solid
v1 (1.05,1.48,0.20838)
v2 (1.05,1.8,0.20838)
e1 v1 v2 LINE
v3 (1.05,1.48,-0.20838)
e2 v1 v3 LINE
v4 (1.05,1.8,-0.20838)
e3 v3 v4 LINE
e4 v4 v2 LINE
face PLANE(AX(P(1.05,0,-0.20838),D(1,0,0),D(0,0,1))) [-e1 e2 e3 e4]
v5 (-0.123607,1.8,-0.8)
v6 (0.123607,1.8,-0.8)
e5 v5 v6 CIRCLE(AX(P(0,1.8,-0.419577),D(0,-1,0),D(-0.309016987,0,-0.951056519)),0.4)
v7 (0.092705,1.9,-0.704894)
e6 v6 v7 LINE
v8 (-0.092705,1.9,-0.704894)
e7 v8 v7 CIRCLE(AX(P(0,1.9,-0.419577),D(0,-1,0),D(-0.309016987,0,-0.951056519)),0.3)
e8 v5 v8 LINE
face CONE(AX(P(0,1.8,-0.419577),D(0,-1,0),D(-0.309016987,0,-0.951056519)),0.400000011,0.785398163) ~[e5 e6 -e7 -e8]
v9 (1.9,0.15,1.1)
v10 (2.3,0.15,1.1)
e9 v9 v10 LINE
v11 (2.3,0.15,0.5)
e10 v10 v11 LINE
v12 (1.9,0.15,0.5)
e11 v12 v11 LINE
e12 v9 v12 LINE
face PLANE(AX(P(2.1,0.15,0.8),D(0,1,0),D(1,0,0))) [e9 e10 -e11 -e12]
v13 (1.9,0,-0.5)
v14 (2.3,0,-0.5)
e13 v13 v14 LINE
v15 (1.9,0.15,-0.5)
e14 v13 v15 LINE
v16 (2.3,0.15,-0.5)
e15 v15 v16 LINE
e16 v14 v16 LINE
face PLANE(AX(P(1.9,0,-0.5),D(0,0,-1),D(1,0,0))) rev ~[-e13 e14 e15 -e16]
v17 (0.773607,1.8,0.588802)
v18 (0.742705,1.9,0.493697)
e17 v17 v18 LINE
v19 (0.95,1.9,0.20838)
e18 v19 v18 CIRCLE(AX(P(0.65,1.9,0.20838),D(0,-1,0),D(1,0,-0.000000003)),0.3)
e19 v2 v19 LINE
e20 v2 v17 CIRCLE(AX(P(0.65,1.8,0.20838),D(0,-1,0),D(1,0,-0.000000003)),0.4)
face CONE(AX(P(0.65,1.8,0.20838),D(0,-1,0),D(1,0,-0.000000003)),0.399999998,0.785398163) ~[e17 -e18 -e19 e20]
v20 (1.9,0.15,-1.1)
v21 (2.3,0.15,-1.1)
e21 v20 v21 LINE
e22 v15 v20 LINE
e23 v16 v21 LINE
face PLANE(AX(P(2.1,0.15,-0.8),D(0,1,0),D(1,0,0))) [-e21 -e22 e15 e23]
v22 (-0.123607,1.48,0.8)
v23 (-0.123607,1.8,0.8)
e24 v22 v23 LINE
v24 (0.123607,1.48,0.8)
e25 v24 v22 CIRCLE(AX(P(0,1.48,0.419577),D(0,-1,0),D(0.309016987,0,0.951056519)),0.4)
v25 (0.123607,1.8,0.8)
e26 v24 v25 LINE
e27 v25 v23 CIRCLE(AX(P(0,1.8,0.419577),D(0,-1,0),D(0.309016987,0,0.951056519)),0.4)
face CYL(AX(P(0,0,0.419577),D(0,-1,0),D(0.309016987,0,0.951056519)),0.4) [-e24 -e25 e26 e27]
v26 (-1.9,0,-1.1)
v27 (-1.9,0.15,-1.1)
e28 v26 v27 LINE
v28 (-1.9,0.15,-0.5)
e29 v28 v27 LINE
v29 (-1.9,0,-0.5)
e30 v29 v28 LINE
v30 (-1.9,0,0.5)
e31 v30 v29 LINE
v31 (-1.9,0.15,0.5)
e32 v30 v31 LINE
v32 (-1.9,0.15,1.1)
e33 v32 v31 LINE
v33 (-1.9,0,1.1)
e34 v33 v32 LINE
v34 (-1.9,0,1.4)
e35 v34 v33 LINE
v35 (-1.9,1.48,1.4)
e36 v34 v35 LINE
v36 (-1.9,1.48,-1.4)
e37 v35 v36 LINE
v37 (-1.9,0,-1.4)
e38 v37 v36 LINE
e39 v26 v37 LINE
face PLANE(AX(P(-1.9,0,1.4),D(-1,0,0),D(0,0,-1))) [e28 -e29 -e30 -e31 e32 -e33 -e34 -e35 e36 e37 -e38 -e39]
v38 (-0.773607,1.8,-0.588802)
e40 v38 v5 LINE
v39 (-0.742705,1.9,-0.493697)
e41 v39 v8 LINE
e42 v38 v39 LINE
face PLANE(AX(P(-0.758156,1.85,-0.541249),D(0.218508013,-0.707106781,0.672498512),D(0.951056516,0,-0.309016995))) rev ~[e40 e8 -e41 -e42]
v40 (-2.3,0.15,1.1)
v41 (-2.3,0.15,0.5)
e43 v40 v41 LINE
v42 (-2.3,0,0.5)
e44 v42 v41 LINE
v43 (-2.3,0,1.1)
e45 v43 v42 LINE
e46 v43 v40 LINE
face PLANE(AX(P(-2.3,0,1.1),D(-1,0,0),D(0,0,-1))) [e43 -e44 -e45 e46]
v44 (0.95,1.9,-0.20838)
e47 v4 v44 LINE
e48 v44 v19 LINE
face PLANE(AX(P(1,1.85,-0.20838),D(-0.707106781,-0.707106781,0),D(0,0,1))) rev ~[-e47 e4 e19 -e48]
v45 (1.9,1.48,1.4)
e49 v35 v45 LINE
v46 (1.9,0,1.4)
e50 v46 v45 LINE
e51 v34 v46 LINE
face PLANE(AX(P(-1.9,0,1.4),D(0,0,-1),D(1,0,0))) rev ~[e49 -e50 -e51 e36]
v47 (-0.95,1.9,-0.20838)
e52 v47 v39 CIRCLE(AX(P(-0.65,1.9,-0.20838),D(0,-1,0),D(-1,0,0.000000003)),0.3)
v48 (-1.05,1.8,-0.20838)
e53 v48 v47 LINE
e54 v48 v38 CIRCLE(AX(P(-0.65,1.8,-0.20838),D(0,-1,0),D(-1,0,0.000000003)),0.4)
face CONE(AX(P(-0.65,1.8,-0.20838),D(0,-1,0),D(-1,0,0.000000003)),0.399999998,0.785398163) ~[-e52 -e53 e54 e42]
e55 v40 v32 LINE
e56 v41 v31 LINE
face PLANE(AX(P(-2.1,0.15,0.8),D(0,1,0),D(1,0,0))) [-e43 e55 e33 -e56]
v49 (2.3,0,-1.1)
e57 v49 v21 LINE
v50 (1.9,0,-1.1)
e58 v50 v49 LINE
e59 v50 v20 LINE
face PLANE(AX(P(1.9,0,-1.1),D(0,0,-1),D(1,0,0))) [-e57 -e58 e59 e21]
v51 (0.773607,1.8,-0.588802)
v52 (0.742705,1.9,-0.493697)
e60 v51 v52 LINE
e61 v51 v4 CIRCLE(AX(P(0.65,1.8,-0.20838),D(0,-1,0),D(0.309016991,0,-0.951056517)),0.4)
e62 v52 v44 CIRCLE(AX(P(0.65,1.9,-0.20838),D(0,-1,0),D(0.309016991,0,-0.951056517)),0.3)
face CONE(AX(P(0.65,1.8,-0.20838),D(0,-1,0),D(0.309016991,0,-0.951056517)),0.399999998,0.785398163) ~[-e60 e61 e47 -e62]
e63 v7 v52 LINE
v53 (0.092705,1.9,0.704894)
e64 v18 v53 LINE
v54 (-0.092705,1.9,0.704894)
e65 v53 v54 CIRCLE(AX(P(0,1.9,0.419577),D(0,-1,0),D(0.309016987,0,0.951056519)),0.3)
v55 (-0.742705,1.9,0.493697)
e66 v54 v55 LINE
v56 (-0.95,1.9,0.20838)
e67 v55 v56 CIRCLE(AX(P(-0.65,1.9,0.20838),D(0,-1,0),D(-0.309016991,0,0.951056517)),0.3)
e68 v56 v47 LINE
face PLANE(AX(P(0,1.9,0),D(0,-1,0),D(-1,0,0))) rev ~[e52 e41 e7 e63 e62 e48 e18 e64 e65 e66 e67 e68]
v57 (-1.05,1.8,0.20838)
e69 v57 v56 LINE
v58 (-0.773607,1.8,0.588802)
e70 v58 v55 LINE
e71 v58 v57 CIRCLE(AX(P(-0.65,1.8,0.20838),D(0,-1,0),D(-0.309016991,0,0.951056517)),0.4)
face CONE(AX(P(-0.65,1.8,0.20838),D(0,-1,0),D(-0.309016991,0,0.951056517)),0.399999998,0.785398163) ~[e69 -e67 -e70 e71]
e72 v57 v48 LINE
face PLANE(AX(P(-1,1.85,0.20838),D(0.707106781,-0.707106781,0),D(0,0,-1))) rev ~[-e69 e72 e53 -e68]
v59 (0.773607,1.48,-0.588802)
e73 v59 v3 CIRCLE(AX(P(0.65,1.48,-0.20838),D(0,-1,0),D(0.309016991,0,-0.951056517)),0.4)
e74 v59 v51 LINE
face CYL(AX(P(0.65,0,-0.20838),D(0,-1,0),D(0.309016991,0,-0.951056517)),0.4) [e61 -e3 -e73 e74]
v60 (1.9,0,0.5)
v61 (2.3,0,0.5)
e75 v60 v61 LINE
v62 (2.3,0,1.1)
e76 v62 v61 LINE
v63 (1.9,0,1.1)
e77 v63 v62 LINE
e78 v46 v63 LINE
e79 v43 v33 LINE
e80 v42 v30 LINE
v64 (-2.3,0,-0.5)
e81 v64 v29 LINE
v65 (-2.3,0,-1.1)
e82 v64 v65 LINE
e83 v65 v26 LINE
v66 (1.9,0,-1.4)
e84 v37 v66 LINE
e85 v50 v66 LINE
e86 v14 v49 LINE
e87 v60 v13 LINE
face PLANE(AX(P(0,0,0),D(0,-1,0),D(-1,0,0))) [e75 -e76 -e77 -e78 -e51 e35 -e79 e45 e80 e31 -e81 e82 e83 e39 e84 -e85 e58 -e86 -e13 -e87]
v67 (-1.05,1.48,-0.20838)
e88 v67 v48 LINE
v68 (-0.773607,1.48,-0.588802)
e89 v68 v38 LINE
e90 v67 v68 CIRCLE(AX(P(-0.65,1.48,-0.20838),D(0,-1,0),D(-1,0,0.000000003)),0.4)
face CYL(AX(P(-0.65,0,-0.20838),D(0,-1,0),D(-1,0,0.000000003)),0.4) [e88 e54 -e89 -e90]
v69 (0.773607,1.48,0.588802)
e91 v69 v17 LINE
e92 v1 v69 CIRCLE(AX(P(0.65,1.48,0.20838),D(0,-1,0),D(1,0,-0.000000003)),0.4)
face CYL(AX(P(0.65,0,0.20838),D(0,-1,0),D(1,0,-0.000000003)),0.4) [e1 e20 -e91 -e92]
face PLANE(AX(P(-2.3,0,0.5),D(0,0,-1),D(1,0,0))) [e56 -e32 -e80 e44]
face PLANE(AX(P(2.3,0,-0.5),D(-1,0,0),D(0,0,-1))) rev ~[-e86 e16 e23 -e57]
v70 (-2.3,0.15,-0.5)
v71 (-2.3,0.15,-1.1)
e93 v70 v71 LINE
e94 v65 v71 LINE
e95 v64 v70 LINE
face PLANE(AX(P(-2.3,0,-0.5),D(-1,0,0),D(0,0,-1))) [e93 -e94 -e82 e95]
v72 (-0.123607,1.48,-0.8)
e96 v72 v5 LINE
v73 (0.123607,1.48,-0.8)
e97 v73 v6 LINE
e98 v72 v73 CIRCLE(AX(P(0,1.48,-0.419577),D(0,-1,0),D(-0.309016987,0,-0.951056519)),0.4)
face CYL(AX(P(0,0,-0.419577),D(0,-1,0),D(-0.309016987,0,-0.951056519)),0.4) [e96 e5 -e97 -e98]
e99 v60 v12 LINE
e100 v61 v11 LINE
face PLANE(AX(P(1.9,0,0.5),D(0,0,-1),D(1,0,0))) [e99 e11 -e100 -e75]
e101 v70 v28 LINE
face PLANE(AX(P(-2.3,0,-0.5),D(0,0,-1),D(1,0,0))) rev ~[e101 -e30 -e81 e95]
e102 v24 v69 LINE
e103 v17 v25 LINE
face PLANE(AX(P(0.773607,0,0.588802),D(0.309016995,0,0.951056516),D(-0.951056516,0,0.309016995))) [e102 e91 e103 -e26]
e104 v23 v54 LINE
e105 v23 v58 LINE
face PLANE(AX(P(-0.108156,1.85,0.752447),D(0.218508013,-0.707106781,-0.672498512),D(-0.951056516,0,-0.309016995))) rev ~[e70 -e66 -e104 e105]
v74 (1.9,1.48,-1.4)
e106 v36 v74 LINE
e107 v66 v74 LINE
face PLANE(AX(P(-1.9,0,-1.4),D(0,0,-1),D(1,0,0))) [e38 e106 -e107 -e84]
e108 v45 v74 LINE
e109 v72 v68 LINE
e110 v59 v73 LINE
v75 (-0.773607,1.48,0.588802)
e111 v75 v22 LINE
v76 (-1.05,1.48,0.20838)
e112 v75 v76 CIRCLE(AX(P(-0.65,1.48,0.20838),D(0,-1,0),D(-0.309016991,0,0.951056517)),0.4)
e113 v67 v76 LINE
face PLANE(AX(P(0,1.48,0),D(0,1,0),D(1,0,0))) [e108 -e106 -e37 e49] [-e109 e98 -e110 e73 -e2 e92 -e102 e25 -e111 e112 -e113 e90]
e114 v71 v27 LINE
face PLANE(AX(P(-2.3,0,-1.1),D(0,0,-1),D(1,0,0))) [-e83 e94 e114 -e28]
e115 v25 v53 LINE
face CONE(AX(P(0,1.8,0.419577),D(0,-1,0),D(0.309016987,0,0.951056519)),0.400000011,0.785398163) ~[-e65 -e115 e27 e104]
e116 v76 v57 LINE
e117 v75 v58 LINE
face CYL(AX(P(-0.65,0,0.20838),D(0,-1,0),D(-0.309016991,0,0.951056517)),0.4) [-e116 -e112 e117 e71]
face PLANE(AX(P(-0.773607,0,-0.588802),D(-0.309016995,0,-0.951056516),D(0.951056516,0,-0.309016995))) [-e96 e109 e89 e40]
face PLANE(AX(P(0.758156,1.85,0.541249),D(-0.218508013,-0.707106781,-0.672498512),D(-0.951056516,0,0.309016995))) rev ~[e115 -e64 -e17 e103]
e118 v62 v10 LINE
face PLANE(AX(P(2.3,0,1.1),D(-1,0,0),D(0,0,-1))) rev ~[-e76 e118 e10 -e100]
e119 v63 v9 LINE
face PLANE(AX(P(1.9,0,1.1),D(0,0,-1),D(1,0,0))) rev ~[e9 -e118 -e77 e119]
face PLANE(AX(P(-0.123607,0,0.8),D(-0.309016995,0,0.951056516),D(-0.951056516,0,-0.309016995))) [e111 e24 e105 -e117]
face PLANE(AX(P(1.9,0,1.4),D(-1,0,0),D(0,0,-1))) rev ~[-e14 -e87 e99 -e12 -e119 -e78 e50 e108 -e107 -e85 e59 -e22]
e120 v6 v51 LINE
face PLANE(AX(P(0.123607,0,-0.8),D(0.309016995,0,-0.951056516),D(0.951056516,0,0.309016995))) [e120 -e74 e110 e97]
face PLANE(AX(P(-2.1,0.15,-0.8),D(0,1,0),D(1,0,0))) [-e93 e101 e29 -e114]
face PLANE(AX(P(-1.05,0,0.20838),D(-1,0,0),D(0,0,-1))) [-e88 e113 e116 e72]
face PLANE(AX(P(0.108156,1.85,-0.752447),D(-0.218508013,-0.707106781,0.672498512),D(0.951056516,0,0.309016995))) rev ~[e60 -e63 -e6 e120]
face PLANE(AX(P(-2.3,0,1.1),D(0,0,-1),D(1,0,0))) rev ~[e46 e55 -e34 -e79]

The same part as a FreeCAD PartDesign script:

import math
import FreeCAD as App
import Part
import Sketcher
Q = App.Units.Quantity


def edges_at(feature, points):
    """Names of the edges that pass closest to the given points."""
    edges = feature.Shape.Edges
    near = lambda p: min(range(len(edges)), key=lambda i: edges[i].distToShape(Part.Vertex(*p))[0])
    return sorted({f"Edge{near(p) + 1}" for p in points})

doc = App.newDocument("Part")
body = doc.addObject("PartDesign::Body", "Body")

sketch1 = doc.addObject("Sketcher::SketchObject", "Sketch")
body.addObject(sketch1)
sketch1.AttachmentSupport = (doc.XZ_Plane, [""])
sketch1.MapMode = "FlatFace"
sketch1.addGeometry([
    Part.LineSegment(App.Vector(-1.9, -1.4, 0), App.Vector(-1.9, 1.4, 0)),
    Part.LineSegment(App.Vector(-1.9, 1.4, 0), App.Vector(1.9, 1.4, 0)),
    Part.LineSegment(App.Vector(1.9, 1.4, 0), App.Vector(1.9, -1.4, 0)),
    Part.LineSegment(App.Vector(1.9, -1.4, 0), App.Vector(-1.9, -1.4, 0)),
], False)
sketch1.addConstraint([
    Sketcher.Constraint("Coincident", 0, 2, 1, 1),
    Sketcher.Constraint("Coincident", 1, 2, 2, 1),
    Sketcher.Constraint("Coincident", 2, 2, 3, 1),
    Sketcher.Constraint("Coincident", 3, 2, 0, 1),
    Sketcher.Constraint("Vertical", 0),
    Sketcher.Constraint("Horizontal", 1),
    Sketcher.Constraint("Vertical", 2),
    Sketcher.Constraint("Horizontal", 3),
    Sketcher.Constraint("Symmetric", 0, 2, 2, 2, -1, 1),
    Sketcher.Constraint("DistanceX", 1, 1, 1, 2, 3.8),
    Sketcher.Constraint("DistanceY", 0, 1, 0, 2, 2.8),
])
pad1 = doc.addObject("PartDesign::Pad", "Pad")
body.addObject(pad1)
pad1.Profile = sketch1
pad1.Length = 1.48
pad1.Reversed = True

sketch2 = doc.addObject("Sketcher::SketchObject", "Sketch001")
body.addObject(sketch2)
sketch2.AttachmentSupport = (doc.XZ_Plane, [""])
sketch2.MapMode = "FlatFace"
sketch2.addGeometry([
    Part.LineSegment(App.Vector(0.773607, -0.588802, 0), App.Vector(0.123607, -0.8, 0)),
    Part.ArcOfCircle(Part.Circle(App.Vector(0, -0.419577, 0), App.Vector(0, 0, 1), 0.4), math.radians(-108), math.radians(-72)),
    Part.LineSegment(App.Vector(-0.123607, -0.8, 0), App.Vector(-0.773607, -0.588802, 0)),
    Part.ArcOfCircle(Part.Circle(App.Vector(-0.65, -0.20838, 0), App.Vector(0, 0, 1), 0.4), math.radians(180), math.radians(252)),
    Part.LineSegment(App.Vector(-1.05, -0.20838, 0), App.Vector(-1.05, 0.20838, 0)),
    Part.ArcOfCircle(Part.Circle(App.Vector(-0.65, 0.20838, 0), App.Vector(0, 0, 1), 0.4), math.radians(108), math.radians(180)),
    Part.LineSegment(App.Vector(-0.773607, 0.588802, 0), App.Vector(-0.123607, 0.8, 0)),
    Part.ArcOfCircle(Part.Circle(App.Vector(0, 0.419577, 0), App.Vector(0, 0, 1), 0.4), math.radians(72), math.radians(108)),
    Part.LineSegment(App.Vector(0.123607, 0.8, 0), App.Vector(0.773607, 0.588802, 0)),
    Part.ArcOfCircle(Part.Circle(App.Vector(0.65, 0.20838, 0), App.Vector(0, 0, 1), 0.4), math.radians(0), math.radians(72)),
    Part.LineSegment(App.Vector(1.05, 0.20838, 0), App.Vector(1.05, -0.20838, 0)),
    Part.ArcOfCircle(Part.Circle(App.Vector(0.65, -0.20838, 0), App.Vector(0, 0, 1), 0.4), math.radians(-72), math.radians(0)),
], False)
sketch2.addConstraint([
    Sketcher.Constraint("Tangent", 0, 2, 1, 2),
    Sketcher.Constraint("Tangent", 1, 1, 2, 1),
    Sketcher.Constraint("Tangent", 2, 2, 3, 2),
    Sketcher.Constraint("Tangent", 3, 1, 4, 1),
    Sketcher.Constraint("Tangent", 4, 2, 5, 2),
    Sketcher.Constraint("Tangent", 5, 1, 6, 1),
    Sketcher.Constraint("Tangent", 6, 2, 7, 2),
    Sketcher.Constraint("Tangent", 7, 1, 8, 1),
    Sketcher.Constraint("Tangent", 8, 2, 9, 2),
    Sketcher.Constraint("Tangent", 9, 1, 10, 1),
    Sketcher.Constraint("Tangent", 10, 2, 11, 2),
    Sketcher.Constraint("Tangent", 11, 1, 0, 1),
    Sketcher.Constraint("Vertical", 4),
    Sketcher.Constraint("Vertical", 10),
    Sketcher.Constraint("Equal", 1, 3),
    Sketcher.Constraint("Equal", 3, 5),
    Sketcher.Constraint("Equal", 5, 7),
    Sketcher.Constraint("Equal", 7, 9),
    Sketcher.Constraint("Equal", 9, 11),
    Sketcher.Constraint("Symmetric", 1, 3, 7, 3, -1, 1),
    Sketcher.Constraint("Symmetric", 3, 3, 9, 3, -1, 1),
    Sketcher.Constraint("Symmetric", 0, 2, 1, 1, -2),
    Sketcher.Constraint("Parallel", 0, 6),
    Sketcher.Constraint("Radius", 1, 0.4),
    Sketcher.Constraint("Angle", 0, Q("-162 deg")),
    Sketcher.Constraint("DistanceY", 0, 2, -1, 1, 0.8),
    Sketcher.Constraint("DistanceX", 5, 3, 9, 3, 1.3),
])
pad2 = doc.addObject("PartDesign::Pad", "Pad001")
body.addObject(pad2)
pad2.Profile = sketch2
pad2.Length = 1.9
pad2.Reversed = True
doc.recompute()

chamfer = doc.addObject("PartDesign::Chamfer", "Chamfer")
body.addObject(chamfer)
chamfer.Base = (pad2, edges_at(pad2, [
    (0, 1.9, -0.82),
    (-0.449, 1.9, -0.694),
    (-0.974, 1.9, -0.443),
    (-1.05, 1.9, 0),
    (-0.974, 1.9, 0.443),
    (-0.449, 1.9, 0.694),
    (0, 1.9, 0.82),
    (0.449, 1.9, 0.694),
    (0.974, 1.9, 0.443),
    (1.05, 1.9, 0),
    (0.974, 1.9, -0.443),
    (0.449, 1.9, -0.694),
]))
chamfer.Size = 0.1

sketch3 = doc.addObject("Sketcher::SketchObject", "Sketch002")
body.addObject(sketch3)
sketch3.AttachmentSupport = (doc.XZ_Plane, [""])
sketch3.MapMode = "FlatFace"
sketch3.addGeometry([
    Part.LineSegment(App.Vector(-2.3, -1.1, 0), App.Vector(-2.3, -0.5, 0)),
    Part.LineSegment(App.Vector(-2.3, -0.5, 0), App.Vector(-1.9, -0.5, 0)),
    Part.LineSegment(App.Vector(-1.9, -0.5, 0), App.Vector(-1.9, -1.1, 0)),
    Part.LineSegment(App.Vector(-1.9, -1.1, 0), App.Vector(-2.3, -1.1, 0)),
    Part.LineSegment(App.Vector(-2.3, 0.5, 0), App.Vector(-2.3, 1.1, 0)),
    Part.LineSegment(App.Vector(-2.3, 1.1, 0), App.Vector(-1.9, 1.1, 0)),
    Part.LineSegment(App.Vector(-1.9, 1.1, 0), App.Vector(-1.9, 0.5, 0)),
    Part.LineSegment(App.Vector(-1.9, 0.5, 0), App.Vector(-2.3, 0.5, 0)),
    Part.LineSegment(App.Vector(1.9, 0.5, 0), App.Vector(1.9, 1.1, 0)),
    Part.LineSegment(App.Vector(1.9, 1.1, 0), App.Vector(2.3, 1.1, 0)),
    Part.LineSegment(App.Vector(2.3, 1.1, 0), App.Vector(2.3, 0.5, 0)),
    Part.LineSegment(App.Vector(2.3, 0.5, 0), App.Vector(1.9, 0.5, 0)),
    Part.LineSegment(App.Vector(1.9, -1.1, 0), App.Vector(1.9, -0.5, 0)),
    Part.LineSegment(App.Vector(1.9, -0.5, 0), App.Vector(2.3, -0.5, 0)),
    Part.LineSegment(App.Vector(2.3, -0.5, 0), App.Vector(2.3, -1.1, 0)),
    Part.LineSegment(App.Vector(2.3, -1.1, 0), App.Vector(1.9, -1.1, 0)),
], False)
sketch3.addConstraint([
    Sketcher.Constraint("Coincident", 0, 2, 1, 1),
    Sketcher.Constraint("Coincident", 1, 2, 2, 1),
    Sketcher.Constraint("Coincident", 2, 2, 3, 1),
    Sketcher.Constraint("Coincident", 3, 2, 0, 1),
    Sketcher.Constraint("Coincident", 4, 2, 5, 1),
    Sketcher.Constraint("Coincident", 5, 2, 6, 1),
    Sketcher.Constraint("Coincident", 6, 2, 7, 1),
    Sketcher.Constraint("Coincident", 7, 2, 4, 1),
    Sketcher.Constraint("Coincident", 8, 2, 9, 1),
    Sketcher.Constraint("Coincident", 9, 2, 10, 1),
    Sketcher.Constraint("Coincident", 10, 2, 11, 1),
    Sketcher.Constraint("Coincident", 11, 2, 8, 1),
    Sketcher.Constraint("Coincident", 12, 2, 13, 1),
    Sketcher.Constraint("Coincident", 13, 2, 14, 1),
    Sketcher.Constraint("Coincident", 14, 2, 15, 1),
    Sketcher.Constraint("Coincident", 15, 2, 12, 1),
    Sketcher.Constraint("Vertical", 0),
    Sketcher.Constraint("Horizontal", 1),
    Sketcher.Constraint("Vertical", 2),
    Sketcher.Constraint("Horizontal", 3),
    Sketcher.Constraint("Vertical", 4),
    Sketcher.Constraint("Horizontal", 5),
    Sketcher.Constraint("Vertical", 6),
    Sketcher.Constraint("Horizontal", 7),
    Sketcher.Constraint("Vertical", 8),
    Sketcher.Constraint("Horizontal", 9),
    Sketcher.Constraint("Vertical", 10),
    Sketcher.Constraint("Horizontal", 11),
    Sketcher.Constraint("Vertical", 12),
    Sketcher.Constraint("Horizontal", 13),
    Sketcher.Constraint("Vertical", 14),
    Sketcher.Constraint("Horizontal", 15),
    Sketcher.Constraint("Symmetric", 2, 2, 8, 2, -1, 1),
    Sketcher.Constraint("Symmetric", 0, 2, 10, 2, -1, 1),
    Sketcher.Constraint("Symmetric", 6, 2, 12, 2, -1, 1),
    Sketcher.Constraint("Symmetric", 4, 2, 14, 2, -1, 1),
    Sketcher.Constraint("Symmetric", 5, 2, 8, 2, -2),
    Sketcher.Constraint("Symmetric", 7, 2, 10, 2, -2),
    Sketcher.Constraint("DistanceX", 1, 1, 1, 2, 0.4),
    Sketcher.Constraint("DistanceY", 0, 1, 0, 2, 0.6),
    Sketcher.Constraint("DistanceY", 1, 2, 6, 2, 1.0),
    Sketcher.Constraint("DistanceX", 0, 2, -1, 1, 2.3),
])
pad3 = doc.addObject("PartDesign::Pad", "Pad002")
body.addObject(pad3)
pad3.Profile = sketch3
pad3.Length = 0.15
pad3.Reversed = True

doc.recompute()
